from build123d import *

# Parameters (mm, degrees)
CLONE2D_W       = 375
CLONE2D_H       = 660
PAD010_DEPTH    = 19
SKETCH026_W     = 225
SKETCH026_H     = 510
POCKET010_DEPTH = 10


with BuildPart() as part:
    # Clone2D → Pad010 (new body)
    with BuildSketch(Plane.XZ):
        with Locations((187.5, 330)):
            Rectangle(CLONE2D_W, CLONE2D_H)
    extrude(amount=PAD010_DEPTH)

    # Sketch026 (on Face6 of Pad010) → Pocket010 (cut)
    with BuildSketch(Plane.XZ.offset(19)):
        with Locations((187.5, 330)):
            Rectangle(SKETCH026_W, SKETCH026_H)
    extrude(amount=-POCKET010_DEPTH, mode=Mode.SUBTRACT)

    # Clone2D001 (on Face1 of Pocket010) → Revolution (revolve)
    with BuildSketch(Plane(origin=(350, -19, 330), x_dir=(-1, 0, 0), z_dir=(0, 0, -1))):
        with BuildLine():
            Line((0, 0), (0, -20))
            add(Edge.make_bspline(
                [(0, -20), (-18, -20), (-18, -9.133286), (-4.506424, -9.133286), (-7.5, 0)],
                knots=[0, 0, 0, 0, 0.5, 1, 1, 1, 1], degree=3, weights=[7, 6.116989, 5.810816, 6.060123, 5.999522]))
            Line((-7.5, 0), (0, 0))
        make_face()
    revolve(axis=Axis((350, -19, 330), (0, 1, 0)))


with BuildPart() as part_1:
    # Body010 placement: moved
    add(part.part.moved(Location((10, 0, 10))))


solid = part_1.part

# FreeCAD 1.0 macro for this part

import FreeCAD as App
import Part
import Sketcher


def add_polygon(sketch, points):
    """Adds a closed chain of lines whose ends are joined by coincident constraints."""
    first, n = sketch.GeometryCount, len(points)
    for a, b in zip(points, points[1:] + points[:1]):
        sketch.addGeometry(Part.LineSegment(App.Vector(*a, 0), App.Vector(*b, 0)), False)
    for i in range(n):
        sketch.addConstraint(Sketcher.Constraint("Coincident", first + i, 2, first + (i + 1) % n, 1))

doc = App.newDocument("Part")
body = doc.addObject("PartDesign::Body", "Body")

# Sketch on XZ plane
sketch1 = doc.addObject("Sketcher::SketchObject", "Sketch")
body.addObject(sketch1)
sketch1.AttachmentSupport = (doc.XZ_Plane, [""])
sketch1.MapMode = "FlatFace"
add_polygon(sketch1, [(0, 660), (0, 0), (375, 0), (375, 660)])  # lines 0-3
sketch1.addConstraint([
    Sketcher.Constraint("Vertical", 0),
    Sketcher.Constraint("Horizontal", 1),
    Sketcher.Constraint("Vertical", 2),
    Sketcher.Constraint("Horizontal", 3),
    Sketcher.Constraint("Coincident", 0, 2, -1, 1),
    Sketcher.Constraint("DistanceX", 1, 1, 1, 2, 375.0),
    Sketcher.Constraint("DistanceY", 0, 2, 0, 1, 660.0),
])
pad1 = doc.addObject("PartDesign::Pad", "Pad")
body.addObject(pad1)
pad1.Profile = sketch1
pad1.Length = 19

# Sketch on XZ plane
sketch2 = doc.addObject("Sketcher::SketchObject", "Sketch001")
body.addObject(sketch2)
sketch2.AttachmentSupport = (doc.XZ_Plane, [""])
sketch2.MapMode = "FlatFace"
sketch2.AttachmentOffset = App.Placement(App.Vector(0, 0, 19), App.Rotation())
add_polygon(sketch2, [(75, 585), (75, 75), (300, 75), (300, 585)])  # lines 0-3
sketch2.addConstraint([
    Sketcher.Constraint("Vertical", 0),
    Sketcher.Constraint("Horizontal", 1),
    Sketcher.Constraint("Vertical", 2),
    Sketcher.Constraint("Horizontal", 3),
    Sketcher.Constraint("DistanceX", 1, 1, 1, 2, 225.0),
    Sketcher.Constraint("DistanceY", 0, 2, 0, 1, 510.0),
    Sketcher.Constraint("DistanceX", -1, 1, 0, 2, 75.0),
    Sketcher.Constraint("DistanceY", -1, 1, 0, 2, 75.0),
])
pocket1 = doc.addObject("PartDesign::Pocket", "Pocket")
body.addObject(pocket1)
pocket1.Profile = sketch2
pocket1.Length = 10

# Sketch on XY plane
sketch3 = doc.addObject("Sketcher::SketchObject", "Sketch002")
body.addObject(sketch3)
sketch3.AttachmentSupport = (doc.XY_Plane, [""])
sketch3.MapMode = "FlatFace"
sketch3.AttachmentOffset = App.Placement(App.Vector(0, 0, 330), App.Rotation())
sketch3.addGeometry([
    Part.LineSegment(App.Vector(350, -39, 0), App.Vector(350, -19, 0)),
    Part.LineSegment(App.Vector(350, -19, 0), App.Vector(357.5, -19, 0)),
    Part.BSplineCurve([App.Vector(350, -39, 0), App.Vector(368, -39, 0), App.Vector(368, -28.133286, 0), App.Vector(354.506424, -28.133286, 0), App.Vector(357.5, -19, 0)], [4, 1, 4], [0, 0.5, 1], False, 3, [7, 6.116989, 5.810816, 6.060123, 5.999522], False),
], False)
sketch3.addGeometry(Part.LineSegment(App.Vector(350, -39, 0), App.Vector(350, -19, 0)), True)  # axis
sketch3.addConstraint([
    Sketcher.Constraint("Block", 2),
    Sketcher.Constraint("Coincident", 0, 2, 1, 1),
    Sketcher.Constraint("Coincident", 1, 2, 2, 2),
    Sketcher.Constraint("Coincident", 2, 1, 0, 1),
    Sketcher.Constraint("Vertical", 0),
    Sketcher.Constraint("Horizontal", 1),
    Sketcher.Constraint("Vertical", 3),
    Sketcher.Constraint("Coincident", 3, 2, 0, 2),
    Sketcher.Constraint("Equal", 0, 3),
])
revolution = doc.addObject("PartDesign::Revolution", "Revolution")
body.addObject(revolution)
revolution.Profile = sketch3
revolution.ReferenceAxis = (sketch3, ["Axis0"])
revolution.Angle = 360
body2 = doc.addObject("PartDesign::Body", "Body001")
doc.recompute()

body.Placement = App.Placement(App.Vector(10, 0, 10), App.Rotation(App.Vector(0, 0, 1), 0))
boolean = doc.addObject("PartDesign::Boolean", "Boolean")
body2.addObject(boolean)
boolean.Type = "Fuse"
boolean.addObjects([body])

doc.recompute()
